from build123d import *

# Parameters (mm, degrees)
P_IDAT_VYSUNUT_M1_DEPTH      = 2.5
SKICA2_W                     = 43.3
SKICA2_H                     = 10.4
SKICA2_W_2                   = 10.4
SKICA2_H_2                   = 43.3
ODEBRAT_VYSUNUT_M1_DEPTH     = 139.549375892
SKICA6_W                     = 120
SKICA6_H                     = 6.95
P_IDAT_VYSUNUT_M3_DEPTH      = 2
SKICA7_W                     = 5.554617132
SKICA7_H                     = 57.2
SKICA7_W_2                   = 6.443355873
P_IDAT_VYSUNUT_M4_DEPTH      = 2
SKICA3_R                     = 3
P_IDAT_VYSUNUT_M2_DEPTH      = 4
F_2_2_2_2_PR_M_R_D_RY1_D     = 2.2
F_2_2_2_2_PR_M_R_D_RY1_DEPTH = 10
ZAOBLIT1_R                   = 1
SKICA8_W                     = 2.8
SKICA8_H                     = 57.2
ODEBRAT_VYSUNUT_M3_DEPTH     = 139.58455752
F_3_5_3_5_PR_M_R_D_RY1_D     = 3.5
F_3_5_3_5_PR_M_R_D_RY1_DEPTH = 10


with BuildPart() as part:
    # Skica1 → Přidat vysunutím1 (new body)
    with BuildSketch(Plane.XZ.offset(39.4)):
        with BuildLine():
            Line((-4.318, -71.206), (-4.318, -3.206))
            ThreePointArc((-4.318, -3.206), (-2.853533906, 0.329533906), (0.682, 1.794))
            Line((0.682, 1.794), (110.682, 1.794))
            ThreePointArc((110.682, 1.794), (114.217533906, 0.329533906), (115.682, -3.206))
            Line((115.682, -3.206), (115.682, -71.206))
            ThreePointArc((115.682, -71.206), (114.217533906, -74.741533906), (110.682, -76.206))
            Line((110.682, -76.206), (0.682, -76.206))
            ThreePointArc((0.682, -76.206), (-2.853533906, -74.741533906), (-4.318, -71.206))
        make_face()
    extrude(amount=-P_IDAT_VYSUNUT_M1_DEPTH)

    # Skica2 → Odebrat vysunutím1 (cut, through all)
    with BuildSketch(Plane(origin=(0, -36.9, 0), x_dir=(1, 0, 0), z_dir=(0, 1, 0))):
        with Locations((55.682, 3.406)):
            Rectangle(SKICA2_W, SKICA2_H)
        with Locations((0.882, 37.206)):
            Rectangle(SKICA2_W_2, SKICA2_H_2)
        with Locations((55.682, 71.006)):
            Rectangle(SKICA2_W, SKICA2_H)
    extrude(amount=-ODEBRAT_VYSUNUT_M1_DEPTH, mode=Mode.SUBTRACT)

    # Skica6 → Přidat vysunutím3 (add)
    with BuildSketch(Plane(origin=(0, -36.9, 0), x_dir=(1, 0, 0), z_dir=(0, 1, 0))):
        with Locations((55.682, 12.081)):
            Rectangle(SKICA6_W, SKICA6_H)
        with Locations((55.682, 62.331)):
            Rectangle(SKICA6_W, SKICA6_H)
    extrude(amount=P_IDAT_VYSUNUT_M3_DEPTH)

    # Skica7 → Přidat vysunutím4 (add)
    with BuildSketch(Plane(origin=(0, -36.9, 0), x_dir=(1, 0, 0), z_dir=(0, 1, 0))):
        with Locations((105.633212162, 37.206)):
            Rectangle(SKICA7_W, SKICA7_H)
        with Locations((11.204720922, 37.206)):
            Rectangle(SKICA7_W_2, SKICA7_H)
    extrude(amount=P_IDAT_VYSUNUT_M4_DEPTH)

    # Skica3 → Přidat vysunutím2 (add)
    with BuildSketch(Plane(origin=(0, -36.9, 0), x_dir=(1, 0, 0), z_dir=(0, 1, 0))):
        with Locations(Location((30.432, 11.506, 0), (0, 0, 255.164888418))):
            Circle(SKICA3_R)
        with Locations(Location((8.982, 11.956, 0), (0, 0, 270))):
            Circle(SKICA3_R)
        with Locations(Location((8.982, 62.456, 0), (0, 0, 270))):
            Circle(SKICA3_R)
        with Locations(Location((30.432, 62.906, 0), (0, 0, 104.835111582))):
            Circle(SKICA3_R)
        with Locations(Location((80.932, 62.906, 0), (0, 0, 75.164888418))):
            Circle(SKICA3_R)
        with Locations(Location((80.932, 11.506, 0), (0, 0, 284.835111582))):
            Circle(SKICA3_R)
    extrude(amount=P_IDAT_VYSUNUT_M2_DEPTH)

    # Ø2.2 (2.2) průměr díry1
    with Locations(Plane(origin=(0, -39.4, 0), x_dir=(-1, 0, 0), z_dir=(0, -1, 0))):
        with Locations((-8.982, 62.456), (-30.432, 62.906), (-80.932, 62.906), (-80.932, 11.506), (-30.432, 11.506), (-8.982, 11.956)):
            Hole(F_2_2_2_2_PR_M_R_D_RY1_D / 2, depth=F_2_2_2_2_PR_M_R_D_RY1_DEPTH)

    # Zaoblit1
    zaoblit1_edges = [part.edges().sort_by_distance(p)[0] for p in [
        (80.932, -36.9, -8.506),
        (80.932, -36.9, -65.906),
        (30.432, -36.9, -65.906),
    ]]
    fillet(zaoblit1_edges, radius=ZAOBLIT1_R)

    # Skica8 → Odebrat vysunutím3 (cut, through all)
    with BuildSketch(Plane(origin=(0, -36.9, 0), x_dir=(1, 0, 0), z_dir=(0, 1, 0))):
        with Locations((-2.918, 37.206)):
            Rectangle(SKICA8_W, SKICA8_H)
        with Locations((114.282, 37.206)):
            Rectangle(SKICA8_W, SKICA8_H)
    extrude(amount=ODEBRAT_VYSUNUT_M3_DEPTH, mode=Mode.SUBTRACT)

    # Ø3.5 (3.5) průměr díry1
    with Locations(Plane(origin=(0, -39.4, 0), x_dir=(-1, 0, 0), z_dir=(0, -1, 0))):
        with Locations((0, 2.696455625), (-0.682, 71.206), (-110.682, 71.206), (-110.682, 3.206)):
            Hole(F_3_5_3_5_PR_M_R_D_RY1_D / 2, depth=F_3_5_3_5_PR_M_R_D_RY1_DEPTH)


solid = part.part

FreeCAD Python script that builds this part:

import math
import FreeCAD as App
import Part
import Sketcher
from FreeCAD import Vector


def edges_at(feature, points):
    """Names of the edges that pass closest to the given points."""
    edges = feature.Shape.Edges
    near = lambda p: min(range(len(edges)), key=lambda i: edges[i].distToShape(Part.Vertex(*p))[0])
    return sorted({f"Edge{near(p) + 1}" for p in points})

doc = App.newDocument("Part")
body = doc.addObject("PartDesign::Body", "Body")

sketch1 = body.newObject("Sketcher::SketchObject", "Sketch")
sketch1.AttachmentSupport = (doc.getObject("XZ_Plane"), [""])
sketch1.MapMode = "FlatFace"
sketch1.AttachmentOffset = App.Placement(Vector(0, 0, 39.4), App.Rotation())
sketch1.addGeometry([
    Part.LineSegment(Vector(-4.318, -3.206, 0), Vector(-4.318, -71.206, 0)),
    Part.ArcOfCircle(Part.Circle(Vector(0.682, -71.206, 0), Vector(0, 0, 1), 5), math.radians(180), math.radians(270)),
    Part.LineSegment(Vector(0.682, -76.206, 0), Vector(110.682, -76.206, 0)),
    Part.ArcOfCircle(Part.Circle(Vector(110.682, -71.206, 0), Vector(0, 0, 1), 5), math.radians(-90), math.radians(0)),
    Part.LineSegment(Vector(115.682, -71.206, 0), Vector(115.682, -3.206, 0)),
    Part.ArcOfCircle(Part.Circle(Vector(110.682, -3.206, 0), Vector(0, 0, 1), 5), math.radians(0), math.radians(90)),
    Part.LineSegment(Vector(110.682, 1.794, 0), Vector(0.682, 1.794, 0)),
    Part.ArcOfCircle(Part.Circle(Vector(0.682, -3.206, 0), Vector(0, 0, 1), 5), math.radians(90), math.radians(180)),
], False)
sketch1.addConstraint([
    Sketcher.Constraint("Tangent", 0, 2, 1, 1),
    Sketcher.Constraint("Tangent", 1, 2, 2, 1),
    Sketcher.Constraint("Tangent", 2, 2, 3, 1),
    Sketcher.Constraint("Tangent", 3, 2, 4, 1),
    Sketcher.Constraint("Tangent", 4, 2, 5, 1),
    Sketcher.Constraint("Tangent", 5, 2, 6, 1),
    Sketcher.Constraint("Tangent", 6, 2, 7, 1),
    Sketcher.Constraint("Tangent", 7, 2, 0, 1),
    Sketcher.Constraint("Vertical", 0),
    Sketcher.Constraint("Horizontal", 2),
    Sketcher.Constraint("Vertical", 4),
    Sketcher.Constraint("Horizontal", 6),
    Sketcher.Constraint("Equal", 1, 3),
    Sketcher.Constraint("Equal", 3, 5),
    Sketcher.Constraint("Equal", 5, 7),
    Sketcher.Constraint("Radius", 1, 5.0),
    Sketcher.Constraint("DistanceX", 2, 1, 2, 2, 110.0),
    Sketcher.Constraint("DistanceY", 0, 2, 0, 1, 68.0),
    Sketcher.Constraint("DistanceX", -1, 1, 1, 3, 0.682),
    Sketcher.Constraint("DistanceY", 1, 3, -1, 1, 71.206),
])
pad1 = body.newObject("PartDesign::Pad", "Pad")
pad1.Profile = sketch1
pad1.Length = 2.5
pad1.Reversed = True

sketch2 = body.newObject("Sketcher::SketchObject", "Sketch001")
sketch2.AttachmentSupport = (doc.getObject("XZ_Plane"), [""])
sketch2.MapMode = "FlatFace"
sketch2.AttachmentOffset = App.Placement(Vector(0, 0, 36.9), App.Rotation())
sketch2.addGeometry([
    Part.LineSegment(Vector(34.032, -8.606, 0), Vector(34.032, 1.794, 0)),
    Part.LineSegment(Vector(34.032, 1.794, 0), Vector(77.332, 1.794, 0)),
    Part.LineSegment(Vector(77.332, 1.794, 0), Vector(77.332, -8.606, 0)),
    Part.LineSegment(Vector(77.332, -8.606, 0), Vector(34.032, -8.606, 0)),
    Part.LineSegment(Vector(-4.318, -58.856, 0), Vector(-4.318, -15.556, 0)),
    Part.LineSegment(Vector(-4.318, -15.556, 0), Vector(6.082, -15.556, 0)),
    Part.LineSegment(Vector(6.082, -15.556, 0), Vector(6.082, -58.856, 0)),
    Part.LineSegment(Vector(6.082, -58.856, 0), Vector(-4.318, -58.856, 0)),
    Part.LineSegment(Vector(34.032, -76.206, 0), Vector(34.032, -65.806, 0)),
    Part.LineSegment(Vector(34.032, -65.806, 0), Vector(77.332, -65.806, 0)),
    Part.LineSegment(Vector(77.332, -65.806, 0), Vector(77.332, -76.206, 0)),
    Part.LineSegment(Vector(77.332, -76.206, 0), Vector(34.032, -76.206, 0)),
], False)
sketch2.addConstraint([
    Sketcher.Constraint("Coincident", 0, 2, 1, 1),
    Sketcher.Constraint("Coincident", 1, 2, 2, 1),
    Sketcher.Constraint("Coincident", 2, 2, 3, 1),
    Sketcher.Constraint("Coincident", 3, 2, 0, 1),
    Sketcher.Constraint("Coincident", 4, 2, 5, 1),
    Sketcher.Constraint("Coincident", 5, 2, 6, 1),
    Sketcher.Constraint("Coincident", 6, 2, 7, 1),
    Sketcher.Constraint("Coincident", 7, 2, 4, 1),
    Sketcher.Constraint("Coincident", 8, 2, 9, 1),
    Sketcher.Constraint("Coincident", 9, 2, 10, 1),
    Sketcher.Constraint("Coincident", 10, 2, 11, 1),
    Sketcher.Constraint("Coincident", 11, 2, 8, 1),
    Sketcher.Constraint("Vertical", 0),
    Sketcher.Constraint("Horizontal", 1),
    Sketcher.Constraint("Vertical", 2),
    Sketcher.Constraint("Horizontal", 3),
    Sketcher.Constraint("Vertical", 4),
    Sketcher.Constraint("Horizontal", 5),
    Sketcher.Constraint("Vertical", 6),
    Sketcher.Constraint("Horizontal", 7),
    Sketcher.Constraint("Vertical", 8),
    Sketcher.Constraint("Horizontal", 9),
    Sketcher.Constraint("Vertical", 10),
    Sketcher.Constraint("Horizontal", 11),
    Sketcher.Constraint("Vertical", 3, 2, 8, 2),
    Sketcher.Constraint("Vertical", 2, 2, 9, 2),
    Sketcher.Constraint("Equal", 7, 0),
    Sketcher.Constraint("Equal", 11, 4),
    Sketcher.Constraint("Equal", 2, 8),
    Sketcher.Constraint("DistanceX", 1, 1, 1, 2, 43.3),
    Sketcher.Constraint("DistanceX", 5, 1, 5, 2, 10.4),
    Sketcher.Constraint("DistanceY", 10, 2, 1, 2, 78.0),
    Sketcher.Constraint("DistanceX", 4, 2, 3, 2, 38.35),
    Sketcher.Constraint("DistanceY", 4, 2, 3, 2, 6.95),
    Sketcher.Constraint("DistanceX", -1, 1, 0, 2, 34.032),
    Sketcher.Constraint("DistanceY", -1, 1, 0, 2, 1.794),
])
pocket1 = body.newObject("PartDesign::Pocket", "Pocket")
pocket1.Profile = sketch2
pocket1.Type = "ThroughAll"
pocket1.Reversed = True

sketch3 = body.newObject("Sketcher::SketchObject", "Sketch002")
sketch3.AttachmentSupport = (doc.getObject("XZ_Plane"), [""])
sketch3.MapMode = "FlatFace"
sketch3.AttachmentOffset = App.Placement(Vector(0, 0, 36.9), App.Rotation())
sketch3.addGeometry([
    Part.LineSegment(Vector(-4.318, -15.556, 0), Vector(-4.318, -8.606, 0)),
    Part.LineSegment(Vector(-4.318, -8.606, 0), Vector(115.682, -8.606, 0)),
    Part.LineSegment(Vector(115.682, -8.606, 0), Vector(115.682, -15.556, 0)),
    Part.LineSegment(Vector(115.682, -15.556, 0), Vector(-4.318, -15.556, 0)),
    Part.LineSegment(Vector(-4.318, -65.806, 0), Vector(-4.318, -58.856, 0)),
    Part.LineSegment(Vector(-4.318, -58.856, 0), Vector(115.682, -58.856, 0)),
    Part.LineSegment(Vector(115.682, -58.856, 0), Vector(115.682, -65.806, 0)),
    Part.LineSegment(Vector(115.682, -65.806, 0), Vector(-4.318, -65.806, 0)),
], False)
sketch3.addConstraint([
    Sketcher.Constraint("Coincident", 0, 2, 1, 1),
    Sketcher.Constraint("Coincident", 1, 2, 2, 1),
    Sketcher.Constraint("Coincident", 2, 2, 3, 1),
    Sketcher.Constraint("Coincident", 3, 2, 0, 1),
    Sketcher.Constraint("Coincident", 4, 2, 5, 1),
    Sketcher.Constraint("Coincident", 5, 2, 6, 1),
    Sketcher.Constraint("Coincident", 6, 2, 7, 1),
    Sketcher.Constraint("Coincident", 7, 2, 4, 1),
    Sketcher.Constraint("Vertical", 0),
    Sketcher.Constraint("Horizontal", 1),
    Sketcher.Constraint("Vertical", 2),
    Sketcher.Constraint("Horizontal", 3),
    Sketcher.Constraint("Vertical", 4),
    Sketcher.Constraint("Horizontal", 5),
    Sketcher.Constraint("Vertical", 6),
    Sketcher.Constraint("Horizontal", 7),
    Sketcher.Constraint("Vertical", 3, 2, 4, 2),
    Sketcher.Constraint("Vertical", 2, 2, 5, 2),
    Sketcher.Constraint("Equal", 2, 4),
    Sketcher.Constraint("DistanceX", 1, 1, 1, 2, 120.0),
    Sketcher.Constraint("DistanceY", 0, 1, 0, 2, 6.95),
    Sketcher.Constraint("DistanceY", 4, 2, 3, 2, 43.3),
    Sketcher.Constraint("DistanceX", 0, 2, -1, 1, 4.318),
    Sketcher.Constraint("DistanceY", 0, 2, -1, 1, 8.606),
])
pad2 = body.newObject("PartDesign::Pad", "Pad001")
pad2.Profile = sketch3
pad2.Length = 2
pad2.Reversed = True

sketch4 = body.newObject("Sketcher::SketchObject", "Sketch003")
sketch4.AttachmentSupport = (doc.getObject("XZ_Plane"), [""])
sketch4.MapMode = "FlatFace"
sketch4.AttachmentOffset = App.Placement(Vector(0, 0, 36.9), App.Rotation())
sketch4.addGeometry([
    Part.LineSegment(Vector(102.855904, -65.806, 0), Vector(102.855904, -8.606, 0)),
    Part.LineSegment(Vector(102.855904, -8.606, 0), Vector(108.410521, -8.606, 0)),
    Part.LineSegment(Vector(108.410521, -8.606, 0), Vector(108.410521, -65.806, 0)),
    Part.LineSegment(Vector(108.410521, -65.806, 0), Vector(102.855904, -65.806, 0)),
    Part.LineSegment(Vector(7.983043, -65.806, 0), Vector(7.983043, -8.606, 0)),
    Part.LineSegment(Vector(7.983043, -8.606, 0), Vector(14.426399, -8.606, 0)),
    Part.LineSegment(Vector(14.426399, -8.606, 0), Vector(14.426399, -65.806, 0)),
    Part.LineSegment(Vector(14.426399, -65.806, 0), Vector(7.983043, -65.806, 0)),
], False)
sketch4.addConstraint([
    Sketcher.Constraint("Coincident", 0, 2, 1, 1),
    Sketcher.Constraint("Coincident", 1, 2, 2, 1),
    Sketcher.Constraint("Coincident", 2, 2, 3, 1),
    Sketcher.Constraint("Coincident", 3, 2, 0, 1),
    Sketcher.Constraint("Coincident", 4, 2, 5, 1),
    Sketcher.Constraint("Coincident", 5, 2, 6, 1),
    Sketcher.Constraint("Coincident", 6, 2, 7, 1),
    Sketcher.Constraint("Coincident", 7, 2, 4, 1),
    Sketcher.Constraint("Vertical", 0),
    Sketcher.Constraint("Horizontal", 1),
    Sketcher.Constraint("Vertical", 2),
    Sketcher.Constraint("Horizontal", 3),
    Sketcher.Constraint("Vertical", 4),
    Sketcher.Constraint("Horizontal", 5),
    Sketcher.Constraint("Vertical", 6),
    Sketcher.Constraint("Horizontal", 7),
    Sketcher.Constraint("Horizontal", 1, 2, 4, 2),
    Sketcher.Constraint("Horizontal", 3, 2, 6, 2),
    Sketcher.Constraint("DistanceY", 0, 1, 0, 2, 57.2),
    Sketcher.Constraint("DistanceY", 0, 2, -1, 1, 8.606),
    Sketcher.Constraint("DistanceX", -1, 1, 5, 2, 14.426399),
    Sketcher.Constraint("DistanceX", 1, 1, 1, 2, 5.554617),
    Sketcher.Constraint("DistanceX", 5, 1, 5, 2, 6.443356),
    Sketcher.Constraint("DistanceX", -1, 1, 1, 2, 108.410521),
])
pad3 = body.newObject("PartDesign::Pad", "Pad002")
pad3.Profile = sketch4
pad3.Length = 2
pad3.Reversed = True

sketch5 = body.newObject("Sketcher::SketchObject", "Sketch004")
sketch5.AttachmentSupport = (doc.getObject("XZ_Plane"), [""])
sketch5.MapMode = "FlatFace"
sketch5.AttachmentOffset = App.Placement(Vector(0, 0, 36.9), App.Rotation())
sketch5.addGeometry([
    Part.Circle(Vector(30.432, -11.506, 0), Vector(0, 0, 1), 3),
    Part.Circle(Vector(8.982, -11.956, 0), Vector(0, 0, 1), 3),
    Part.Circle(Vector(8.982, -62.456, 0), Vector(0, 0, 1), 3),
    Part.Circle(Vector(30.432, -62.906, 0), Vector(0, 0, 1), 3),
    Part.Circle(Vector(80.932, -62.906, 0), Vector(0, 0, 1), 3),
    Part.Circle(Vector(80.932, -11.506, 0), Vector(0, 0, 1), 3),
], False)
sketch5.addConstraint([
    Sketcher.Constraint("Equal", 0, 1),
    Sketcher.Constraint("Equal", 1, 2),
    Sketcher.Constraint("Equal", 2, 3),
    Sketcher.Constraint("Equal", 3, 4),
    Sketcher.Constraint("Equal", 4, 5),
    Sketcher.Constraint("Horizontal", 3, 3, 4, 3),
    Sketcher.Constraint("Horizontal", 0, 3, 5, 3),
    Sketcher.Constraint("Vertical", 1, 3, 2, 3),
    Sketcher.Constraint("Vertical", 0, 3, 3, 3),
    Sketcher.Constraint("Vertical", 4, 3, 5, 3),
    Sketcher.Constraint("Diameter", 0, 6.0),
    Sketcher.Constraint("DistanceY", 2, 3, 1, 3, 50.5),
    Sketcher.Constraint("DistanceY", 3, 3, 0, 3, 51.4),
    Sketcher.Constraint("DistanceX", 3, 3, 4, 3, 50.5),
    Sketcher.Constraint("DistanceX", 1, 3, 0, 3, 21.45),
    Sketcher.Constraint("DistanceY", 1, 3, 0, 3, 0.45),
    Sketcher.Constraint("DistanceX", -1, 1, 0, 3, 30.432),
    Sketcher.Constraint("DistanceY", 0, 3, -1, 1, 11.506),
])
pad4 = body.newObject("PartDesign::Pad", "Pad003")
pad4.Profile = sketch5
pad4.Length = 4
pad4.Reversed = True

sketch6 = body.newObject("Sketcher::SketchObject", "Sketch005")
sketch6.AttachmentSupport = (doc.getObject("XZ_Plane"), [""])
sketch6.MapMode = "FlatFace"
sketch6.AttachmentOffset = App.Placement(Vector(0, 0, 39.4), App.Rotation())
sketch6.addGeometry([
    Part.Circle(Vector(8.982, -62.456, 0), Vector(0, 0, 1), 1.1),
    Part.Circle(Vector(30.432, -62.906, 0), Vector(0, 0, 1), 1.1),
    Part.Circle(Vector(80.932, -62.906, 0), Vector(0, 0, 1), 1.1),
    Part.Circle(Vector(80.932, -11.506, 0), Vector(0, 0, 1), 1.1),
    Part.Circle(Vector(30.432, -11.506, 0), Vector(0, 0, 1), 1.1),
    Part.Circle(Vector(8.982, -11.956, 0), Vector(0, 0, 1), 1.1),
], False)
sketch6.addConstraint([
    Sketcher.Constraint("Equal", 0, 1),
    Sketcher.Constraint("Equal", 1, 2),
    Sketcher.Constraint("Equal", 2, 3),
    Sketcher.Constraint("Equal", 3, 4),
    Sketcher.Constraint("Equal", 4, 5),
    Sketcher.Constraint("Horizontal", 1, 3, 2, 3),
    Sketcher.Constraint("Horizontal", 3, 3, 4, 3),
    Sketcher.Constraint("Vertical", 2, 3, 3, 3),
    Sketcher.Constraint("Vertical", 1, 3, 4, 3),
    Sketcher.Constraint("Vertical", 0, 3, 5, 3),
    Sketcher.Constraint("Diameter", 0, 2.2),
    Sketcher.Constraint("DistanceX", 1, 3, 2, 3, 50.5),
    Sketcher.Constraint("DistanceY", 2, 3, 3, 3, 51.4),
    Sketcher.Constraint("DistanceY", 0, 3, 5, 3, 50.5),
    Sketcher.Constraint("DistanceX", 0, 3, 1, 3, 21.45),
    Sketcher.Constraint("DistanceY", 1, 3, 0, 3, 0.45),
    Sketcher.Constraint("DistanceX", -1, 1, 0, 3, 8.982),
    Sketcher.Constraint("DistanceY", 0, 3, -1, 1, 62.456),
])
doc.recompute()
hole = body.newObject("PartDesign::Hole", "Hole")
hole.Profile = sketch6
hole.ThreadType = "None"
hole.Diameter = 2.2
hole.DepthType = "Dimension"
hole.Depth = 10
hole.DrillPoint = "Flat"
doc.recompute()

fillet = body.newObject("PartDesign::Fillet", "Fillet")
fillet.Base = (hole, edges_at(hole, [(80.932, -36.9, -8.506), (80.932, -36.9, -65.906), (30.432, -36.9, -65.906)]))
fillet.Radius = 1

sketch7 = body.newObject("Sketcher::SketchObject", "Sketch006")
sketch7.AttachmentSupport = (doc.getObject("XZ_Plane"), [""])
sketch7.MapMode = "FlatFace"
sketch7.AttachmentOffset = App.Placement(Vector(0, 0, 36.9), App.Rotation())
sketch7.addGeometry([
    Part.LineSegment(Vector(-4.318, -65.806, 0), Vector(-4.318, -8.606, 0)),
    Part.LineSegment(Vector(-4.318, -8.606, 0), Vector(-1.518, -8.606, 0)),
    Part.LineSegment(Vector(-1.518, -8.606, 0), Vector(-1.518, -65.806, 0)),
    Part.LineSegment(Vector(-1.518, -65.806, 0), Vector(-4.318, -65.806, 0)),
    Part.LineSegment(Vector(112.882, -65.806, 0), Vector(112.882, -8.606, 0)),
    Part.LineSegment(Vector(112.882, -8.606, 0), Vector(115.682, -8.606, 0)),
    Part.LineSegment(Vector(115.682, -8.606, 0), Vector(115.682, -65.806, 0)),
    Part.LineSegment(Vector(115.682, -65.806, 0), Vector(112.882, -65.806, 0)),
], False)
sketch7.addConstraint([
    Sketcher.Constraint("Coincident", 0, 2, 1, 1),
    Sketcher.Constraint("Coincident", 1, 2, 2, 1),
    Sketcher.Constraint("Coincident", 2, 2, 3, 1),
    Sketcher.Constraint("Coincident", 3, 2, 0, 1),
    Sketcher.Constraint("Coincident", 4, 2, 5, 1),
    Sketcher.Constraint("Coincident", 5, 2, 6, 1),
    Sketcher.Constraint("Coincident", 6, 2, 7, 1),
    Sketcher.Constraint("Coincident", 7, 2, 4, 1),
    Sketcher.Constraint("Vertical", 0),
    Sketcher.Constraint("Horizontal", 1),
    Sketcher.Constraint("Vertical", 2),
    Sketcher.Constraint("Horizontal", 3),
    Sketcher.Constraint("Vertical", 4),
    Sketcher.Constraint("Horizontal", 5),
    Sketcher.Constraint("Vertical", 6),
    Sketcher.Constraint("Horizontal", 7),
    Sketcher.Constraint("Horizontal", 1, 2, 4, 2),
    Sketcher.Constraint("Horizontal", 3, 2, 6, 2),
    Sketcher.Constraint("Equal", 3, 5),
    Sketcher.Constraint("DistanceX", 1, 1, 1, 2, 2.8),
    Sketcher.Constraint("DistanceY", 0, 1, 0, 2, 57.2),
    Sketcher.Constraint("DistanceX", 0, 2, 5, 2, 120.0),
    Sketcher.Constraint("DistanceX", 0, 2, -1, 1, 4.318),
    Sketcher.Constraint("DistanceY", 0, 2, -1, 1, 8.606),
])
pocket2 = body.newObject("PartDesign::Pocket", "Pocket001")
pocket2.Profile = sketch7
pocket2.Type = "ThroughAll"

sketch8 = body.newObject("Sketcher::SketchObject", "Sketch007")
sketch8.AttachmentSupport = (doc.getObject("XZ_Plane"), [""])
sketch8.MapMode = "FlatFace"
sketch8.AttachmentOffset = App.Placement(Vector(0, 0, 39.4), App.Rotation())
sketch8.addGeometry([
    Part.Circle(Vector(0, -2.696456, 0), Vector(0, 0, 1), 1.75),
    Part.Circle(Vector(0.682, -71.206, 0), Vector(0, 0, 1), 1.75),
    Part.Circle(Vector(110.682, -71.206, 0), Vector(0, 0, 1), 1.75),
    Part.Circle(Vector(110.682, -3.206, 0), Vector(0, 0, 1), 1.75),
], False)
sketch8.addConstraint([
    Sketcher.Constraint("Equal", 0, 1),
    Sketcher.Constraint("Equal", 1, 2),
    Sketcher.Constraint("Equal", 2, 3),
    Sketcher.Constraint("PointOnObject", 0, 3, -2),
    Sketcher.Constraint("Horizontal", 1, 3, 2, 3),
    Sketcher.Constraint("Vertical", 2, 3, 3, 3),
    Sketcher.Constraint("Diameter", 0, 3.5),
    Sketcher.Constraint("DistanceX", 1, 3, 2, 3, 110.0),
    Sketcher.Constraint("DistanceY", 2, 3, 3, 3, 68.0),
    Sketcher.Constraint("DistanceX", -1, 1, 1, 3, 0.682),
    Sketcher.Constraint("DistanceY", 1, 3, -1, 1, 71.206),
    Sketcher.Constraint("DistanceY", 0, 3, -1, 1, 2.696456),
])
doc.recompute()
hole2 = body.newObject("PartDesign::Hole", "Hole001")
hole2.Profile = sketch8
hole2.ThreadType = "None"
hole2.Diameter = 3.5
hole2.DepthType = "Dimension"
hole2.Depth = 10
hole2.DrillPoint = "Flat"

doc.recompute()
